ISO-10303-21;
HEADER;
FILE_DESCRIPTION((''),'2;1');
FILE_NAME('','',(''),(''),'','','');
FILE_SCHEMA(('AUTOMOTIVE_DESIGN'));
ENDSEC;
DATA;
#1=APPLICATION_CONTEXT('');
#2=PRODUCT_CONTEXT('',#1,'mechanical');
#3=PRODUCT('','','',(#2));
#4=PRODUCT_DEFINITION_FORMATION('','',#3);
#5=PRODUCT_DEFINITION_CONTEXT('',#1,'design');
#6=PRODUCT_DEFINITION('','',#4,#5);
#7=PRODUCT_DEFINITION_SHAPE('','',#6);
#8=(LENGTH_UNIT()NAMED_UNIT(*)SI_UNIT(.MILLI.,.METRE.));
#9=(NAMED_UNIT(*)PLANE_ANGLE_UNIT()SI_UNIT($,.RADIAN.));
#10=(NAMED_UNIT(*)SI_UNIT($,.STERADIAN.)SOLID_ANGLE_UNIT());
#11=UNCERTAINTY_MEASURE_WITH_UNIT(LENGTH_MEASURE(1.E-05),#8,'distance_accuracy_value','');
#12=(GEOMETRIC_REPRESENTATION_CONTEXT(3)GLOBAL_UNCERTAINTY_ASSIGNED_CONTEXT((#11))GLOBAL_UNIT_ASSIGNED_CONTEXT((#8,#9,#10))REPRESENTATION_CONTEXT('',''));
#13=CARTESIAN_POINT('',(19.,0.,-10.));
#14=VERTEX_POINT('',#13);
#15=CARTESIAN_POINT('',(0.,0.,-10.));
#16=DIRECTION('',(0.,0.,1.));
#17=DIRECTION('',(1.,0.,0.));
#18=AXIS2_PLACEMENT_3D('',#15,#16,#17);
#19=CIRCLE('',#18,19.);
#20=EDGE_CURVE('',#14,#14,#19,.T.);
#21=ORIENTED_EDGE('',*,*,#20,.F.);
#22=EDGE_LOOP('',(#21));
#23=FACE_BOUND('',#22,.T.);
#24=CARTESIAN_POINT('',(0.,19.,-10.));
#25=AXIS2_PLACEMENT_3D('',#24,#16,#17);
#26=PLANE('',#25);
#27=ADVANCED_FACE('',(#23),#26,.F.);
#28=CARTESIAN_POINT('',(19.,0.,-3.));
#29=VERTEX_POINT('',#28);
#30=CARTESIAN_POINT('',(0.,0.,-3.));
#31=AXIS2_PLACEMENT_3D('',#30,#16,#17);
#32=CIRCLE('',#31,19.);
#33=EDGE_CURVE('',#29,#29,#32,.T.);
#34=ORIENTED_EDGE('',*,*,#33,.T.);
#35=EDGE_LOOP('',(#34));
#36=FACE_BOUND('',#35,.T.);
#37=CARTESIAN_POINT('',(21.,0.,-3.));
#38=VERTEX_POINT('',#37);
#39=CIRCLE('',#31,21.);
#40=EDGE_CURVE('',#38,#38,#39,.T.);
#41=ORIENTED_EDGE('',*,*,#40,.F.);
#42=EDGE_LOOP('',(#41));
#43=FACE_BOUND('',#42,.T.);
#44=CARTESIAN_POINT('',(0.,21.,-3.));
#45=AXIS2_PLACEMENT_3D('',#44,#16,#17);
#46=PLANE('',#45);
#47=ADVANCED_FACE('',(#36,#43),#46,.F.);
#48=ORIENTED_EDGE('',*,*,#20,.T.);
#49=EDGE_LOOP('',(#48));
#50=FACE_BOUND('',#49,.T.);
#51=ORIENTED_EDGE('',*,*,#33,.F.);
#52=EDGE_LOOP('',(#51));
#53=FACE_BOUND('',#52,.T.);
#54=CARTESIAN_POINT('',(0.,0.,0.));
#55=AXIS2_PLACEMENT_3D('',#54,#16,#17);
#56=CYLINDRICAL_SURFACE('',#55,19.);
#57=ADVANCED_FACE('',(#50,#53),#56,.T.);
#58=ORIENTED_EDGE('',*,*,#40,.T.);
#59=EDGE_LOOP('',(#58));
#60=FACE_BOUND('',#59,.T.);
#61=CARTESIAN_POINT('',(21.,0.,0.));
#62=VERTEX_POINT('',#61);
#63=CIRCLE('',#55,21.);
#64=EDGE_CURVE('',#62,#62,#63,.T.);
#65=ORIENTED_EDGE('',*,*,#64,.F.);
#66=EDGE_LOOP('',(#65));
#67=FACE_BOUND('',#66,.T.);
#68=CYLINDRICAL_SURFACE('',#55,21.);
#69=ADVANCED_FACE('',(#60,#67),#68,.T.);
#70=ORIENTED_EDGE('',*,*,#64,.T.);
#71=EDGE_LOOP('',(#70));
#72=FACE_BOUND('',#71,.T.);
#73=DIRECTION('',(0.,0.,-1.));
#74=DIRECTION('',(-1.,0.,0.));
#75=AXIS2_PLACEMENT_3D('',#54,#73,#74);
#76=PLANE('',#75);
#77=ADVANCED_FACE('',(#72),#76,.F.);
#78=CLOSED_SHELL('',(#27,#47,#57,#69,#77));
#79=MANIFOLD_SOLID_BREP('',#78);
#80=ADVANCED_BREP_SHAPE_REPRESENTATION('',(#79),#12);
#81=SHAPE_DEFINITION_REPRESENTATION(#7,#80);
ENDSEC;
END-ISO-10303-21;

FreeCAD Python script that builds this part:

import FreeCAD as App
import Part
import Sketcher

V = App.Vector


def add_polygon(sketch, points):
    """Adds a closed chain of lines whose ends are joined by coincident constraints."""
    first, n = sketch.GeometryCount, len(points)
    for a, b in zip(points, points[1:] + points[:1]):
        sketch.addGeometry(Part.LineSegment(App.Vector(*a, 0), App.Vector(*b, 0)), False)
    for i in range(n):
        sketch.addConstraint(Sketcher.Constraint("Coincident", first + i, 2, first + (i + 1) % n, 1))

doc = App.newDocument("Part")
body = doc.addObject("PartDesign::Body", "Body")

sketch1 = body.newObject("Sketcher::SketchObject", "Sketch")
sketch1.AttachmentSupport = (doc.getObject("YZ_Plane"), [""])
sketch1.MapMode = "FlatFace"
add_polygon(sketch1, [(21, 0), (0, 0), (0, -10), (19, -10), (19, -3), (21, -3)])
sketch1.addConstraint([
    Sketcher.Constraint("Horizontal", 0),
    Sketcher.Constraint("Vertical", 1),
    Sketcher.Constraint("Horizontal", 2),
    Sketcher.Constraint("Vertical", 3),
    Sketcher.Constraint("Horizontal", 4),
    Sketcher.Constraint("Vertical", 5),
    Sketcher.Constraint("Coincident", 0, 2, -1, 1),
    Sketcher.Constraint("DistanceX", 0, 2, 0, 1, 21.0),
    Sketcher.Constraint("DistanceX", 2, 1, 2, 2, 19.0),
    Sketcher.Constraint("DistanceY", 1, 2, 1, 1, 10.0),
    Sketcher.Constraint("DistanceY", 3, 1, 3, 2, 7.0),
])
revolution = body.newObject("PartDesign::Revolution", "Revolution")
revolution.Profile = sketch1
revolution.ReferenceAxis = (sketch1, ["V_Axis"])
revolution.Angle = 360

doc.recompute()
